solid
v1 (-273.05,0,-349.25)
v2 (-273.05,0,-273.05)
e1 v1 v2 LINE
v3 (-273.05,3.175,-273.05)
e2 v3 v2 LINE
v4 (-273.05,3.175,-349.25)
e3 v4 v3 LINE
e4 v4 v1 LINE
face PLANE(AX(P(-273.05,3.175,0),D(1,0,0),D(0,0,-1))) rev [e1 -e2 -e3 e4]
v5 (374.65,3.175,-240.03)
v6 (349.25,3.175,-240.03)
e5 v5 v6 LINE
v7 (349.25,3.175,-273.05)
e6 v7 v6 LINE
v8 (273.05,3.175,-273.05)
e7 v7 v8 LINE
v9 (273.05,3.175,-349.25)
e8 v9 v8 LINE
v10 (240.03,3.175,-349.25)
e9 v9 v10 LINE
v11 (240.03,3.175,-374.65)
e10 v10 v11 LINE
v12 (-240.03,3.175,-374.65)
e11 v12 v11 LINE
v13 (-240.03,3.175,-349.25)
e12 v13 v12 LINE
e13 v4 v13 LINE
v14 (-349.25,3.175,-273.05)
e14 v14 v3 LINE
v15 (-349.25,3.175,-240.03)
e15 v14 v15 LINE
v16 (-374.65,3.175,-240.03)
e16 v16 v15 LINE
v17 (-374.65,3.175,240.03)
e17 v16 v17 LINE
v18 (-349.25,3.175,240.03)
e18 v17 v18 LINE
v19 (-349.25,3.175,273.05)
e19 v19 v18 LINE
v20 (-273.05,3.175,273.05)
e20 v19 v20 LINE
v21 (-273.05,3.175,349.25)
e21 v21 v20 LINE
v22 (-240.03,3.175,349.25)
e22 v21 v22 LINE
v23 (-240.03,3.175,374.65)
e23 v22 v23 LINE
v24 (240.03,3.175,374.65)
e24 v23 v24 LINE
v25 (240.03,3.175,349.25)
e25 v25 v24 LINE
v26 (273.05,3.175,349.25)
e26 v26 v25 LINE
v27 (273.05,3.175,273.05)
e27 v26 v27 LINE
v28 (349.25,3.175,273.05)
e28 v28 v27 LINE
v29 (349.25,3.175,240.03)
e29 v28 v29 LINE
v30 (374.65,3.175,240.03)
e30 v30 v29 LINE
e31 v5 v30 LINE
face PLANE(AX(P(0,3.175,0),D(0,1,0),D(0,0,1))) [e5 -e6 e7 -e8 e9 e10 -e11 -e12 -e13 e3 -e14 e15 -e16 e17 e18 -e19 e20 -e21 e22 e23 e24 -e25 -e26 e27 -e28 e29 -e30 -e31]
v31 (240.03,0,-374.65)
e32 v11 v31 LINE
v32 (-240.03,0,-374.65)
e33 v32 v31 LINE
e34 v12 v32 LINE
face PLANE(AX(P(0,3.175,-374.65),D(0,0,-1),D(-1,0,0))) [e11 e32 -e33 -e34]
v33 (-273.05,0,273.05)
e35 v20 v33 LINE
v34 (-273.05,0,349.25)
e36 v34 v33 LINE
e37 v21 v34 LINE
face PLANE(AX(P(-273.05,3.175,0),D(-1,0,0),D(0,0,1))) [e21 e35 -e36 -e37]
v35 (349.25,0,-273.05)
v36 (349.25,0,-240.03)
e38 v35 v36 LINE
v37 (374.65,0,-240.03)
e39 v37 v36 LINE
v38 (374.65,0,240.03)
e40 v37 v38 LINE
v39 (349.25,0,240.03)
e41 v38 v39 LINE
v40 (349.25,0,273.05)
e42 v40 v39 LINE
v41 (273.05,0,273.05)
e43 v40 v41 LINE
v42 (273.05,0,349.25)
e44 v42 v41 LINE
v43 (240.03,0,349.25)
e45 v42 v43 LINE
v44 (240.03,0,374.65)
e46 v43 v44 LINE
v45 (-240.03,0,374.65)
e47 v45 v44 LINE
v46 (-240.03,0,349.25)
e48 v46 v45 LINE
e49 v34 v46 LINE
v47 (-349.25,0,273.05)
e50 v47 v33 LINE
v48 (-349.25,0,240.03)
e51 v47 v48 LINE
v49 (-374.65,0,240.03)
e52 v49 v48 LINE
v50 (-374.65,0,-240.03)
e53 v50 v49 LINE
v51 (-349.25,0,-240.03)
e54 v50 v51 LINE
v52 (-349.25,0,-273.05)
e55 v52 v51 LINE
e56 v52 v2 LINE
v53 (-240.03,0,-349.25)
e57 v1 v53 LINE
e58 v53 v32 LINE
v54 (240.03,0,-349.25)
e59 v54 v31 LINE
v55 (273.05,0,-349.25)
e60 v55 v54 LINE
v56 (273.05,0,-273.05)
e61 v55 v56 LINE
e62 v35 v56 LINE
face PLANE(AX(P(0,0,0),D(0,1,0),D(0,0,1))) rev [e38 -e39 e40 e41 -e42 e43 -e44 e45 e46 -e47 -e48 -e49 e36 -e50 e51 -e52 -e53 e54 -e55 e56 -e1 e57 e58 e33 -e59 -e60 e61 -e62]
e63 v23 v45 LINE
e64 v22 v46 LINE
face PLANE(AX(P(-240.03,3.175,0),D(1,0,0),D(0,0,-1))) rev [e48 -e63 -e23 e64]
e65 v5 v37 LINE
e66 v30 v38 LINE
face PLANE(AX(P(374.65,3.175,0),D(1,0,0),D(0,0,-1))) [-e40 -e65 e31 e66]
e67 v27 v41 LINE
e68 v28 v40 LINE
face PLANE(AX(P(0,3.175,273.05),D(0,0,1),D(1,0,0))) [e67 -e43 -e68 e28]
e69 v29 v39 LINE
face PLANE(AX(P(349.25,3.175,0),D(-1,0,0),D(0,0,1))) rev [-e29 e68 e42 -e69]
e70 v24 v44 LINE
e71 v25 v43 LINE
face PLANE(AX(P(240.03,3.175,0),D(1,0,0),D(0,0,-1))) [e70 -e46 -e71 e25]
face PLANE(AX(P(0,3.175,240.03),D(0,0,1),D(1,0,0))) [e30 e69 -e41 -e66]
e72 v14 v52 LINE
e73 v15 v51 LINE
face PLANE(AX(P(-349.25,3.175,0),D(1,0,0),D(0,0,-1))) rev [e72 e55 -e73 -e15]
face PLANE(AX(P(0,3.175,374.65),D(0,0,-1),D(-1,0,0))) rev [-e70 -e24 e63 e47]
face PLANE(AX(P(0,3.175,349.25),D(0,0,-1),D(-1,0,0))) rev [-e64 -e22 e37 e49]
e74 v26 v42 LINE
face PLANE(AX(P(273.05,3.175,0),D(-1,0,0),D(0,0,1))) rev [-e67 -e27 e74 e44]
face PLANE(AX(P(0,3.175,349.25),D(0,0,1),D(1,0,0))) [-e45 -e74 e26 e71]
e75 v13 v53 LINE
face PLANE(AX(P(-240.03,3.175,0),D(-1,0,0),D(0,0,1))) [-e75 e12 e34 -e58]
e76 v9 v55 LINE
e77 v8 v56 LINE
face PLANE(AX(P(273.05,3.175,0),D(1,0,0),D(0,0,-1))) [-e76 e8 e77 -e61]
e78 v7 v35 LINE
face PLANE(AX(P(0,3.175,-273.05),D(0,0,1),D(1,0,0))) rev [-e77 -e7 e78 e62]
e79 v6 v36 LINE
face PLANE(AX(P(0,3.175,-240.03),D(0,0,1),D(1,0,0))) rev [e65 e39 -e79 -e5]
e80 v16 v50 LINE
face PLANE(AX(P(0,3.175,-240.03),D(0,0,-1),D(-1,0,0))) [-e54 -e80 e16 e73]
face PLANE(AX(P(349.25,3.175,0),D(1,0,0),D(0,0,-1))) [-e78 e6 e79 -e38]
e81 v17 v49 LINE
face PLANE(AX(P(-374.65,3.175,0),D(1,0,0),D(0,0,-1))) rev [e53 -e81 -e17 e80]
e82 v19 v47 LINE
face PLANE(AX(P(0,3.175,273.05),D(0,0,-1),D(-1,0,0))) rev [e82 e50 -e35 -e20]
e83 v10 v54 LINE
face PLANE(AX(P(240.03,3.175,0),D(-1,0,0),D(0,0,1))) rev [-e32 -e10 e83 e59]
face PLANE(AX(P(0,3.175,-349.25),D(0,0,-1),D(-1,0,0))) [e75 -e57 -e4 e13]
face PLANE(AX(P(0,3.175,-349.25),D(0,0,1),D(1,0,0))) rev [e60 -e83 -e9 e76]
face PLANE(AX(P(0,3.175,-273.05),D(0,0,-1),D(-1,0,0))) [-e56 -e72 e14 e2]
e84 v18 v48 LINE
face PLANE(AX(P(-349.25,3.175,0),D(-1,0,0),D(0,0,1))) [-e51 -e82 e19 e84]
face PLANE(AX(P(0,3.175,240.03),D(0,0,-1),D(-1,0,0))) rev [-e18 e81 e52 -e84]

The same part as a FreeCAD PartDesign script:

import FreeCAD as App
import Part
import Sketcher
Q = App.Units.Quantity


def add_polygon(sketch, points):
    """Adds a closed chain of lines whose ends are joined by coincident constraints."""
    first, n = sketch.GeometryCount, len(points)
    for a, b in zip(points, points[1:] + points[:1]):
        sketch.addGeometry(Part.LineSegment(App.Vector(*a, 0), App.Vector(*b, 0)), False)
    for i in range(n):
        sketch.addConstraint(Sketcher.Constraint("Coincident", first + i, 2, first + (i + 1) % n, 1))

doc = App.newDocument("Part")
body = doc.addObject("PartDesign::Body", "Body")

sketch1 = doc.addObject("Sketcher::SketchObject", "Sketch")
body.addObject(sketch1)
sketch1.AttachmentSupport = (doc.XZ_Plane, [""])
sketch1.MapMode = "FlatFace"
add_polygon(sketch1, [(240.03, -374.65), (-240.03, -374.65), (-240.03, -349.25), (-273.05, -349.25), (-273.05, -273.05), (-349.25, -273.05), (-349.25, -240.03), (-374.65, -240.03), (-374.65, 240.03), (-349.25, 240.03), (-349.25, 273.05), (-273.05, 273.05), (-273.05, 349.25), (-240.03, 349.25), (-240.03, 374.65), (240.03, 374.65), (240.03, 349.25), (273.05, 349.25), (273.05, 273.05), (349.25, 273.05), (349.25, 240.03), (374.65, 240.03), (374.65, -240.03), (349.25, -240.03), (349.25, -273.05), (273.05, -273.05), (273.05, -349.25), (240.03, -349.25)])
sketch1.addConstraint([
    Sketcher.Constraint("Horizontal", 0),
    Sketcher.Constraint("Vertical", 1),
    Sketcher.Constraint("Horizontal", 2),
    Sketcher.Constraint("Vertical", 3),
    Sketcher.Constraint("Horizontal", 4),
    Sketcher.Constraint("Vertical", 5),
    Sketcher.Constraint("Horizontal", 6),
    Sketcher.Constraint("Vertical", 7),
    Sketcher.Constraint("Horizontal", 8),
    Sketcher.Constraint("Vertical", 9),
    Sketcher.Constraint("Horizontal", 10),
    Sketcher.Constraint("Vertical", 11),
    Sketcher.Constraint("Horizontal", 12),
    Sketcher.Constraint("Vertical", 13),
    Sketcher.Constraint("Horizontal", 14),
    Sketcher.Constraint("Vertical", 15),
    Sketcher.Constraint("Horizontal", 16),
    Sketcher.Constraint("Vertical", 17),
    Sketcher.Constraint("Horizontal", 18),
    Sketcher.Constraint("Vertical", 19),
    Sketcher.Constraint("Horizontal", 20),
    Sketcher.Constraint("Vertical", 21),
    Sketcher.Constraint("Horizontal", 22),
    Sketcher.Constraint("Vertical", 23),
    Sketcher.Constraint("Horizontal", 24),
    Sketcher.Constraint("Vertical", 25),
    Sketcher.Constraint("Horizontal", 26),
    Sketcher.Constraint("Vertical", 27),
    Sketcher.Constraint("Symmetric", 0, 2, 14, 2, -1, 1),
    Sketcher.Constraint("Symmetric", 2, 2, 16, 2, -1, 1),
    Sketcher.Constraint("Symmetric", 4, 2, 18, 2, -1, 1),
    Sketcher.Constraint("Symmetric", 6, 2, 20, 2, -1, 1),
    Sketcher.Constraint("Symmetric", 8, 2, 22, 2, -1, 1),
    Sketcher.Constraint("Symmetric", 10, 2, 24, 2, -1, 1),
    Sketcher.Constraint("Symmetric", 12, 2, 26, 2, -1, 1),
    Sketcher.Constraint("Symmetric", 12, 2, 15, 2, -2),
    Sketcher.Constraint("Symmetric", 10, 2, 17, 2, -2),
    Sketcher.Constraint("Symmetric", 8, 2, 19, 2, -2),
    Sketcher.Constraint("Equal", 22, 1),
    Sketcher.Constraint("Equal", 24, 3),
    Sketcher.Constraint("Equal", 26, 5),
    Sketcher.Constraint("Equal", 14, 7),
    Sketcher.Constraint("DistanceX", 4, 2, 4, 1, Q("3 in")),
    Sketcher.Constraint("DistanceX", 6, 2, 6, 1, Q("1 in")),
    Sketcher.Constraint("DistanceX", 0, 2, 0, 1, Q("18.9 in")),
    Sketcher.Constraint("DistanceX", 2, 2, 2, 1, Q("1.3 in")),
])
pad1 = doc.addObject("PartDesign::Pad", "Pad")
body.addObject(pad1)
pad1.Profile = sketch1
pad1.Length = Q("0.125 in")
pad1.Reversed = True

doc.recompute()
